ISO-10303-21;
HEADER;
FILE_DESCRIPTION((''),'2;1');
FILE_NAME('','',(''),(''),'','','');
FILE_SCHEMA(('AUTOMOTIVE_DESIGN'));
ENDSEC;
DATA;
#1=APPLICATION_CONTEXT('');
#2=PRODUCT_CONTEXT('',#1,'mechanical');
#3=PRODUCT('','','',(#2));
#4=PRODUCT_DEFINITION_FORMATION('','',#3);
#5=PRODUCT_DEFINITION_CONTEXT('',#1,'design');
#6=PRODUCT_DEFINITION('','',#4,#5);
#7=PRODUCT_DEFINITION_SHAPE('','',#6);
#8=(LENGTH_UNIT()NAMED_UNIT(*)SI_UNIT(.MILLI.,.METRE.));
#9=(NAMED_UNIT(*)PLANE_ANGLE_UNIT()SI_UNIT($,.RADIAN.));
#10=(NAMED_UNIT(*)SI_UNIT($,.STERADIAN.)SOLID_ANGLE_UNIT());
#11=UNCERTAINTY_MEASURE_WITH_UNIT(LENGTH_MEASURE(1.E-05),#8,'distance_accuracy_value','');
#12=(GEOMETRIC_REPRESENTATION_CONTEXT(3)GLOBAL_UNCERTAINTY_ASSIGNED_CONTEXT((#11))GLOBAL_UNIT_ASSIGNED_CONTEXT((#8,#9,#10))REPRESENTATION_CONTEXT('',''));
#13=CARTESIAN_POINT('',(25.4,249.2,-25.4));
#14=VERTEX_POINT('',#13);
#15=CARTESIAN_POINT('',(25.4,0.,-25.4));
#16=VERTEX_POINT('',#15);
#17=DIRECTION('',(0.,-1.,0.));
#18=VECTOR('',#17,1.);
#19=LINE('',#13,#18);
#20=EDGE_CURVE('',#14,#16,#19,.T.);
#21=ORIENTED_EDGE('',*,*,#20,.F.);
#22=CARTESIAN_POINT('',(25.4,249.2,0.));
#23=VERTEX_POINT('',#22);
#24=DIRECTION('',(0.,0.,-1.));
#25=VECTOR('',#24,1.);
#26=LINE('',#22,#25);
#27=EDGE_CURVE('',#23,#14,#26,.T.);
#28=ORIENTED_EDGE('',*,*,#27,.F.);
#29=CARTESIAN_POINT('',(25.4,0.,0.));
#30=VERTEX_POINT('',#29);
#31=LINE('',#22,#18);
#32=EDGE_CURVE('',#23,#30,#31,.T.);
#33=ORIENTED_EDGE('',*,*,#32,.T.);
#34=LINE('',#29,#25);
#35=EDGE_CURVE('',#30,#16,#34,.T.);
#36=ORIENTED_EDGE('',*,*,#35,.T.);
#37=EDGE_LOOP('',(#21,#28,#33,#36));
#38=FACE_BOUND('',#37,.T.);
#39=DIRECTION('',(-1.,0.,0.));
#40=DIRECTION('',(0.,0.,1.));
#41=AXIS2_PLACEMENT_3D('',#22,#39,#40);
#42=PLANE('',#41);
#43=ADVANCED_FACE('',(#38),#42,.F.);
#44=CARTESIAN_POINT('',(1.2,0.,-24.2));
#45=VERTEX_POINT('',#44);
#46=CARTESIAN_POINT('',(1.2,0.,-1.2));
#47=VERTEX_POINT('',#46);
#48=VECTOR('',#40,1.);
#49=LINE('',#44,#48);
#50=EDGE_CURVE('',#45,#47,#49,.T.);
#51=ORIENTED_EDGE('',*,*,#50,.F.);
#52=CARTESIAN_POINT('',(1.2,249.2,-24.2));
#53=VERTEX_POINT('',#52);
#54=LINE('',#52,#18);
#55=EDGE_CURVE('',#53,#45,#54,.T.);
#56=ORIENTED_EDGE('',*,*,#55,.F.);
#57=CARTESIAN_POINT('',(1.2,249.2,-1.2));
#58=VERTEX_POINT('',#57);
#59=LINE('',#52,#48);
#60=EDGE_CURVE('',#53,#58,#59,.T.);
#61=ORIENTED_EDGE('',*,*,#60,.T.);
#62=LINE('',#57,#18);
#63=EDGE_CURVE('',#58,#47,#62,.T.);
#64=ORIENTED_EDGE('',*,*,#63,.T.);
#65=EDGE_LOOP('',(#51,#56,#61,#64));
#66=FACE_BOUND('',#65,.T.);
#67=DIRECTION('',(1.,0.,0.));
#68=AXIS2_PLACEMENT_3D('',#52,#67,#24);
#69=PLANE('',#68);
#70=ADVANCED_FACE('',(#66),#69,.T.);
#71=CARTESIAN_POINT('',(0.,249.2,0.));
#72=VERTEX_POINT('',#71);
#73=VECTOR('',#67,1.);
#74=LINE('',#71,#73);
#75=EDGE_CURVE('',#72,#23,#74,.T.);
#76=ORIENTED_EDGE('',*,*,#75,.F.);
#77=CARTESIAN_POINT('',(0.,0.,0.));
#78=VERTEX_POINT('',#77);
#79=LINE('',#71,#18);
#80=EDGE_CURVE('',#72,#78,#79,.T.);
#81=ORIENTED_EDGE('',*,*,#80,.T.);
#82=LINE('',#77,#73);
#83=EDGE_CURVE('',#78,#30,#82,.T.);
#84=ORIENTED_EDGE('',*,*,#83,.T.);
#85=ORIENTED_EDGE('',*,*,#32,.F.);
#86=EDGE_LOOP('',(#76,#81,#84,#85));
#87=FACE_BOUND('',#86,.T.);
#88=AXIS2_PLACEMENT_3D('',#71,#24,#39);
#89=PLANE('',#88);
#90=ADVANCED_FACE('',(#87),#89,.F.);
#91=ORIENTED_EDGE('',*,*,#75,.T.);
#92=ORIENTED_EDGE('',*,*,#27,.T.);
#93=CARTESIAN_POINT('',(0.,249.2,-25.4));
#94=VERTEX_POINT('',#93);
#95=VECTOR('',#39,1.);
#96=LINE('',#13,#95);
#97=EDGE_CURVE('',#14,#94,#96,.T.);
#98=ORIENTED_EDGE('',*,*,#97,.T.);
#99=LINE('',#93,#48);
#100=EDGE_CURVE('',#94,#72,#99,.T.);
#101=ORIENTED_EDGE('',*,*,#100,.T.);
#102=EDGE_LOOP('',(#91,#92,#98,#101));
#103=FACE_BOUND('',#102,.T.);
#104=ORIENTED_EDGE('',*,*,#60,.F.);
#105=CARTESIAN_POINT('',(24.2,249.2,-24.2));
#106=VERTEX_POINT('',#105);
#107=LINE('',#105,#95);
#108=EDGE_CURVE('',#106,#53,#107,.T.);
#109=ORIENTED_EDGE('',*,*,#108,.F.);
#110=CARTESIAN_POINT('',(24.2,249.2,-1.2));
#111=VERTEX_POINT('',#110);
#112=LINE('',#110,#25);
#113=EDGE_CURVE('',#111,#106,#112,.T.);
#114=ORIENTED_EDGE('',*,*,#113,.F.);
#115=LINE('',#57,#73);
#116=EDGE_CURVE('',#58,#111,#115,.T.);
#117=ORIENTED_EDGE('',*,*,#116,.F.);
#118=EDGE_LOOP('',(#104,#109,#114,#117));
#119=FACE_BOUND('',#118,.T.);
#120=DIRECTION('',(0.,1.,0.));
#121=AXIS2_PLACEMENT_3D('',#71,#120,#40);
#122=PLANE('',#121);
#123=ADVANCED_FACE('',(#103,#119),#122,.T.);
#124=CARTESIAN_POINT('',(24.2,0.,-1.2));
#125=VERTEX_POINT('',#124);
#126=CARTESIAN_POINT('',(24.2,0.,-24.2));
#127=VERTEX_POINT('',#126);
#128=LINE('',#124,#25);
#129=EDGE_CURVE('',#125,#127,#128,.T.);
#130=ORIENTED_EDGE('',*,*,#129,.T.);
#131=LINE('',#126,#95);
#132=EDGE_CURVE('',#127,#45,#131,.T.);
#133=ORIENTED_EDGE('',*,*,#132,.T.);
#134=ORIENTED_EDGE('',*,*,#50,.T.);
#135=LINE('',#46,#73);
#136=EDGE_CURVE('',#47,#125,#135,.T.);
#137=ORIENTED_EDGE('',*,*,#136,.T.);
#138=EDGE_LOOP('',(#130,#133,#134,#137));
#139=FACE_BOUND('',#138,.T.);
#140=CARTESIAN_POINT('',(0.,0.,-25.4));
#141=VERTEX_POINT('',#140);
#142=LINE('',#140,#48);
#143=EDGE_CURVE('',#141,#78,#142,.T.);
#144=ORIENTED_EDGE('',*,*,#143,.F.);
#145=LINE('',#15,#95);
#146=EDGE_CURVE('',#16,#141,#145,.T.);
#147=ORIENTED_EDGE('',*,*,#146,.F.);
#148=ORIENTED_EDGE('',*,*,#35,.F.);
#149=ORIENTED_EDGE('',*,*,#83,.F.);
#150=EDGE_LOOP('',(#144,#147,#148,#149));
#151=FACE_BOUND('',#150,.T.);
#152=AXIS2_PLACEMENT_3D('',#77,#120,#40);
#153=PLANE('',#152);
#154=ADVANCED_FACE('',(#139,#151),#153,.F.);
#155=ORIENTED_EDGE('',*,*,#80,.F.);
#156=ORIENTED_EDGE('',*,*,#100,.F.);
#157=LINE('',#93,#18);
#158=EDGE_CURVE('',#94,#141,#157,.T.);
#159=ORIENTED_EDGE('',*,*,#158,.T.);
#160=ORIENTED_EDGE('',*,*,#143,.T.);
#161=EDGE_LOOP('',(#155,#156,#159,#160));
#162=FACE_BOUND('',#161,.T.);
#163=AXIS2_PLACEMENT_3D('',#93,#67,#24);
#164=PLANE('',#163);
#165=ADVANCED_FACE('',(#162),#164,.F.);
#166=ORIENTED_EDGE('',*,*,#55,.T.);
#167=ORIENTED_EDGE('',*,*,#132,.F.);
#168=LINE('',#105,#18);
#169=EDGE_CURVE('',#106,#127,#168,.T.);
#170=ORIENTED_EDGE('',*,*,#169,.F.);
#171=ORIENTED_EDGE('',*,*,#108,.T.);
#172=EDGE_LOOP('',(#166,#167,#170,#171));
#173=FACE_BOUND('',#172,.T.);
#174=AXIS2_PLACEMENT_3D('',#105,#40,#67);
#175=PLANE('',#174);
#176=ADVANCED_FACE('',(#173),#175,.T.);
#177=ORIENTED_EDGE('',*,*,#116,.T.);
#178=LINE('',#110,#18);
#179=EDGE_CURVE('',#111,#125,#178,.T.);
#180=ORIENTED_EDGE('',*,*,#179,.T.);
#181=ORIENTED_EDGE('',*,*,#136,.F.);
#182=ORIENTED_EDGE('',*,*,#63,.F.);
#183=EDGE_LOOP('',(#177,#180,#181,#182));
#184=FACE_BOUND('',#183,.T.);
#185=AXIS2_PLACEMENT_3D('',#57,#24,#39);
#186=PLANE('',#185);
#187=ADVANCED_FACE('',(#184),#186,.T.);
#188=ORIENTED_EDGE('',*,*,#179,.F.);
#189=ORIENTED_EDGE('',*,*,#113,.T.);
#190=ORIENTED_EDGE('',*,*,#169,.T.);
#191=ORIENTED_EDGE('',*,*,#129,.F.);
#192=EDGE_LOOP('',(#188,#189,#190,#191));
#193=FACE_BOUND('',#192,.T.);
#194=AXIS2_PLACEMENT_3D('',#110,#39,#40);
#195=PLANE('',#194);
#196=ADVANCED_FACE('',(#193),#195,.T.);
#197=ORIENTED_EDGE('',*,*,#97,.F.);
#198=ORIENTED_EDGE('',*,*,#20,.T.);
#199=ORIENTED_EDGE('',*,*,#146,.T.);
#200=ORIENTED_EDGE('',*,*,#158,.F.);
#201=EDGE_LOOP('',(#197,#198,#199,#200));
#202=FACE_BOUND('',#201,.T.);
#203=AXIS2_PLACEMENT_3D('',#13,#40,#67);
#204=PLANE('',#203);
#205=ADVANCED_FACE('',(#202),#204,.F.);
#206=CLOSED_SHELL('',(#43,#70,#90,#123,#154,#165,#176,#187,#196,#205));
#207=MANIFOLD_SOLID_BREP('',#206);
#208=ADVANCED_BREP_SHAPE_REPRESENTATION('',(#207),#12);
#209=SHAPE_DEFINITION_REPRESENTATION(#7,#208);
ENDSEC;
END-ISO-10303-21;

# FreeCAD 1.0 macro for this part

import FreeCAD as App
import Part
import Sketcher

V = App.Vector
Q = App.Units.Quantity

doc = App.newDocument("Part")
params = doc.addObject("Spreadsheet::Sheet", "Params")
for row, (alias, value) in enumerate([
    ("sketch1_width", "23 mm"),
    ("sketch1_width2", "25.4 mm"),
    ("pad1_length", "249.2 mm"),
], start=1):
    params.set(f"A{row}", alias)
    params.set(f"B{row}", "=" + value)
    params.setAlias(f"B{row}", alias)

body = doc.addObject("PartDesign::Body", "Body")

# Sketch on XZ plane
sketch1 = body.newObject("Sketcher::SketchObject", "Sketch")
sketch1.AttachmentSupport = (doc.getObject("XZ_Plane"), [""])
sketch1.MapMode = "FlatFace"
sketch1.addGeometry(Part.LineSegment(V(0, -25, 0), V(0, 0, 0)), False)
sketch1.addGeometry(Part.LineSegment(V(0, 0, 0), V(25, 0, 0)), False)
sketch1.addGeometry(Part.LineSegment(V(25, 0, 0), V(25, -25, 0)), False)
sketch1.addGeometry(Part.LineSegment(V(25, -25, 0), V(0, -25, 0)), False)
sketch1.addGeometry(Part.LineSegment(V(24, -1, 0), V(1, -1, 0)), False)
sketch1.addGeometry(Part.LineSegment(V(1, -1, 0), V(1, -24, 0)), False)
sketch1.addGeometry(Part.LineSegment(V(1, -24, 0), V(24, -24, 0)), False)
sketch1.addGeometry(Part.LineSegment(V(24, -24, 0), V(24, -1, 0)), False)
sketch1.addConstraint(Sketcher.Constraint("Coincident", 0, 2, 1, 1))
sketch1.addConstraint(Sketcher.Constraint("Coincident", 1, 2, 2, 1))
sketch1.addConstraint(Sketcher.Constraint("Coincident", 2, 2, 3, 1))
sketch1.addConstraint(Sketcher.Constraint("Coincident", 3, 2, 0, 1))
sketch1.addConstraint(Sketcher.Constraint("Coincident", 4, 2, 5, 1))
sketch1.addConstraint(Sketcher.Constraint("Coincident", 5, 2, 6, 1))
sketch1.addConstraint(Sketcher.Constraint("Coincident", 6, 2, 7, 1))
sketch1.addConstraint(Sketcher.Constraint("Coincident", 7, 2, 4, 1))
sketch1.addConstraint(Sketcher.Constraint("Vertical", 0))
sketch1.addConstraint(Sketcher.Constraint("Horizontal", 1))
sketch1.addConstraint(Sketcher.Constraint("Vertical", 2))
sketch1.addConstraint(Sketcher.Constraint("Horizontal", 3))
sketch1.addConstraint(Sketcher.Constraint("Horizontal", 4))
sketch1.addConstraint(Sketcher.Constraint("Vertical", 5))
sketch1.addConstraint(Sketcher.Constraint("Horizontal", 6))
sketch1.addConstraint(Sketcher.Constraint("Vertical", 7))
sketch1.addConstraint(Sketcher.Constraint("Coincident", 0, 2, -1, 1))
sketch1.addConstraint(Sketcher.Constraint("Equal", 3, 0))
sketch1.addConstraint(Sketcher.Constraint("Equal", 6, 5))
sketch1.addConstraint(Sketcher.Constraint("DistanceX", 4, 2, 4, 1, Q("23 mm")))
sketch1.addConstraint(Sketcher.Constraint("DistanceX", 1, 1, 1, 2, Q("25.4 mm")))
sketch1.addConstraint(Sketcher.Constraint("DistanceX", -1, 1, 4, 2, Q("1.2 mm")))
sketch1.addConstraint(Sketcher.Constraint("DistanceY", 4, 2, -1, 1, Q("1.2 mm")))
sketch1.setExpression("Constraints[19]", "Params.sketch1_width")
sketch1.setExpression("Constraints[20]", "Params.sketch1_width2")
pad1 = body.newObject("PartDesign::Pad", "Pad")
pad1.Profile = sketch1
pad1.setExpression("Length", "Params.pad1_length")
pad1.Reversed = True

doc.recompute()
